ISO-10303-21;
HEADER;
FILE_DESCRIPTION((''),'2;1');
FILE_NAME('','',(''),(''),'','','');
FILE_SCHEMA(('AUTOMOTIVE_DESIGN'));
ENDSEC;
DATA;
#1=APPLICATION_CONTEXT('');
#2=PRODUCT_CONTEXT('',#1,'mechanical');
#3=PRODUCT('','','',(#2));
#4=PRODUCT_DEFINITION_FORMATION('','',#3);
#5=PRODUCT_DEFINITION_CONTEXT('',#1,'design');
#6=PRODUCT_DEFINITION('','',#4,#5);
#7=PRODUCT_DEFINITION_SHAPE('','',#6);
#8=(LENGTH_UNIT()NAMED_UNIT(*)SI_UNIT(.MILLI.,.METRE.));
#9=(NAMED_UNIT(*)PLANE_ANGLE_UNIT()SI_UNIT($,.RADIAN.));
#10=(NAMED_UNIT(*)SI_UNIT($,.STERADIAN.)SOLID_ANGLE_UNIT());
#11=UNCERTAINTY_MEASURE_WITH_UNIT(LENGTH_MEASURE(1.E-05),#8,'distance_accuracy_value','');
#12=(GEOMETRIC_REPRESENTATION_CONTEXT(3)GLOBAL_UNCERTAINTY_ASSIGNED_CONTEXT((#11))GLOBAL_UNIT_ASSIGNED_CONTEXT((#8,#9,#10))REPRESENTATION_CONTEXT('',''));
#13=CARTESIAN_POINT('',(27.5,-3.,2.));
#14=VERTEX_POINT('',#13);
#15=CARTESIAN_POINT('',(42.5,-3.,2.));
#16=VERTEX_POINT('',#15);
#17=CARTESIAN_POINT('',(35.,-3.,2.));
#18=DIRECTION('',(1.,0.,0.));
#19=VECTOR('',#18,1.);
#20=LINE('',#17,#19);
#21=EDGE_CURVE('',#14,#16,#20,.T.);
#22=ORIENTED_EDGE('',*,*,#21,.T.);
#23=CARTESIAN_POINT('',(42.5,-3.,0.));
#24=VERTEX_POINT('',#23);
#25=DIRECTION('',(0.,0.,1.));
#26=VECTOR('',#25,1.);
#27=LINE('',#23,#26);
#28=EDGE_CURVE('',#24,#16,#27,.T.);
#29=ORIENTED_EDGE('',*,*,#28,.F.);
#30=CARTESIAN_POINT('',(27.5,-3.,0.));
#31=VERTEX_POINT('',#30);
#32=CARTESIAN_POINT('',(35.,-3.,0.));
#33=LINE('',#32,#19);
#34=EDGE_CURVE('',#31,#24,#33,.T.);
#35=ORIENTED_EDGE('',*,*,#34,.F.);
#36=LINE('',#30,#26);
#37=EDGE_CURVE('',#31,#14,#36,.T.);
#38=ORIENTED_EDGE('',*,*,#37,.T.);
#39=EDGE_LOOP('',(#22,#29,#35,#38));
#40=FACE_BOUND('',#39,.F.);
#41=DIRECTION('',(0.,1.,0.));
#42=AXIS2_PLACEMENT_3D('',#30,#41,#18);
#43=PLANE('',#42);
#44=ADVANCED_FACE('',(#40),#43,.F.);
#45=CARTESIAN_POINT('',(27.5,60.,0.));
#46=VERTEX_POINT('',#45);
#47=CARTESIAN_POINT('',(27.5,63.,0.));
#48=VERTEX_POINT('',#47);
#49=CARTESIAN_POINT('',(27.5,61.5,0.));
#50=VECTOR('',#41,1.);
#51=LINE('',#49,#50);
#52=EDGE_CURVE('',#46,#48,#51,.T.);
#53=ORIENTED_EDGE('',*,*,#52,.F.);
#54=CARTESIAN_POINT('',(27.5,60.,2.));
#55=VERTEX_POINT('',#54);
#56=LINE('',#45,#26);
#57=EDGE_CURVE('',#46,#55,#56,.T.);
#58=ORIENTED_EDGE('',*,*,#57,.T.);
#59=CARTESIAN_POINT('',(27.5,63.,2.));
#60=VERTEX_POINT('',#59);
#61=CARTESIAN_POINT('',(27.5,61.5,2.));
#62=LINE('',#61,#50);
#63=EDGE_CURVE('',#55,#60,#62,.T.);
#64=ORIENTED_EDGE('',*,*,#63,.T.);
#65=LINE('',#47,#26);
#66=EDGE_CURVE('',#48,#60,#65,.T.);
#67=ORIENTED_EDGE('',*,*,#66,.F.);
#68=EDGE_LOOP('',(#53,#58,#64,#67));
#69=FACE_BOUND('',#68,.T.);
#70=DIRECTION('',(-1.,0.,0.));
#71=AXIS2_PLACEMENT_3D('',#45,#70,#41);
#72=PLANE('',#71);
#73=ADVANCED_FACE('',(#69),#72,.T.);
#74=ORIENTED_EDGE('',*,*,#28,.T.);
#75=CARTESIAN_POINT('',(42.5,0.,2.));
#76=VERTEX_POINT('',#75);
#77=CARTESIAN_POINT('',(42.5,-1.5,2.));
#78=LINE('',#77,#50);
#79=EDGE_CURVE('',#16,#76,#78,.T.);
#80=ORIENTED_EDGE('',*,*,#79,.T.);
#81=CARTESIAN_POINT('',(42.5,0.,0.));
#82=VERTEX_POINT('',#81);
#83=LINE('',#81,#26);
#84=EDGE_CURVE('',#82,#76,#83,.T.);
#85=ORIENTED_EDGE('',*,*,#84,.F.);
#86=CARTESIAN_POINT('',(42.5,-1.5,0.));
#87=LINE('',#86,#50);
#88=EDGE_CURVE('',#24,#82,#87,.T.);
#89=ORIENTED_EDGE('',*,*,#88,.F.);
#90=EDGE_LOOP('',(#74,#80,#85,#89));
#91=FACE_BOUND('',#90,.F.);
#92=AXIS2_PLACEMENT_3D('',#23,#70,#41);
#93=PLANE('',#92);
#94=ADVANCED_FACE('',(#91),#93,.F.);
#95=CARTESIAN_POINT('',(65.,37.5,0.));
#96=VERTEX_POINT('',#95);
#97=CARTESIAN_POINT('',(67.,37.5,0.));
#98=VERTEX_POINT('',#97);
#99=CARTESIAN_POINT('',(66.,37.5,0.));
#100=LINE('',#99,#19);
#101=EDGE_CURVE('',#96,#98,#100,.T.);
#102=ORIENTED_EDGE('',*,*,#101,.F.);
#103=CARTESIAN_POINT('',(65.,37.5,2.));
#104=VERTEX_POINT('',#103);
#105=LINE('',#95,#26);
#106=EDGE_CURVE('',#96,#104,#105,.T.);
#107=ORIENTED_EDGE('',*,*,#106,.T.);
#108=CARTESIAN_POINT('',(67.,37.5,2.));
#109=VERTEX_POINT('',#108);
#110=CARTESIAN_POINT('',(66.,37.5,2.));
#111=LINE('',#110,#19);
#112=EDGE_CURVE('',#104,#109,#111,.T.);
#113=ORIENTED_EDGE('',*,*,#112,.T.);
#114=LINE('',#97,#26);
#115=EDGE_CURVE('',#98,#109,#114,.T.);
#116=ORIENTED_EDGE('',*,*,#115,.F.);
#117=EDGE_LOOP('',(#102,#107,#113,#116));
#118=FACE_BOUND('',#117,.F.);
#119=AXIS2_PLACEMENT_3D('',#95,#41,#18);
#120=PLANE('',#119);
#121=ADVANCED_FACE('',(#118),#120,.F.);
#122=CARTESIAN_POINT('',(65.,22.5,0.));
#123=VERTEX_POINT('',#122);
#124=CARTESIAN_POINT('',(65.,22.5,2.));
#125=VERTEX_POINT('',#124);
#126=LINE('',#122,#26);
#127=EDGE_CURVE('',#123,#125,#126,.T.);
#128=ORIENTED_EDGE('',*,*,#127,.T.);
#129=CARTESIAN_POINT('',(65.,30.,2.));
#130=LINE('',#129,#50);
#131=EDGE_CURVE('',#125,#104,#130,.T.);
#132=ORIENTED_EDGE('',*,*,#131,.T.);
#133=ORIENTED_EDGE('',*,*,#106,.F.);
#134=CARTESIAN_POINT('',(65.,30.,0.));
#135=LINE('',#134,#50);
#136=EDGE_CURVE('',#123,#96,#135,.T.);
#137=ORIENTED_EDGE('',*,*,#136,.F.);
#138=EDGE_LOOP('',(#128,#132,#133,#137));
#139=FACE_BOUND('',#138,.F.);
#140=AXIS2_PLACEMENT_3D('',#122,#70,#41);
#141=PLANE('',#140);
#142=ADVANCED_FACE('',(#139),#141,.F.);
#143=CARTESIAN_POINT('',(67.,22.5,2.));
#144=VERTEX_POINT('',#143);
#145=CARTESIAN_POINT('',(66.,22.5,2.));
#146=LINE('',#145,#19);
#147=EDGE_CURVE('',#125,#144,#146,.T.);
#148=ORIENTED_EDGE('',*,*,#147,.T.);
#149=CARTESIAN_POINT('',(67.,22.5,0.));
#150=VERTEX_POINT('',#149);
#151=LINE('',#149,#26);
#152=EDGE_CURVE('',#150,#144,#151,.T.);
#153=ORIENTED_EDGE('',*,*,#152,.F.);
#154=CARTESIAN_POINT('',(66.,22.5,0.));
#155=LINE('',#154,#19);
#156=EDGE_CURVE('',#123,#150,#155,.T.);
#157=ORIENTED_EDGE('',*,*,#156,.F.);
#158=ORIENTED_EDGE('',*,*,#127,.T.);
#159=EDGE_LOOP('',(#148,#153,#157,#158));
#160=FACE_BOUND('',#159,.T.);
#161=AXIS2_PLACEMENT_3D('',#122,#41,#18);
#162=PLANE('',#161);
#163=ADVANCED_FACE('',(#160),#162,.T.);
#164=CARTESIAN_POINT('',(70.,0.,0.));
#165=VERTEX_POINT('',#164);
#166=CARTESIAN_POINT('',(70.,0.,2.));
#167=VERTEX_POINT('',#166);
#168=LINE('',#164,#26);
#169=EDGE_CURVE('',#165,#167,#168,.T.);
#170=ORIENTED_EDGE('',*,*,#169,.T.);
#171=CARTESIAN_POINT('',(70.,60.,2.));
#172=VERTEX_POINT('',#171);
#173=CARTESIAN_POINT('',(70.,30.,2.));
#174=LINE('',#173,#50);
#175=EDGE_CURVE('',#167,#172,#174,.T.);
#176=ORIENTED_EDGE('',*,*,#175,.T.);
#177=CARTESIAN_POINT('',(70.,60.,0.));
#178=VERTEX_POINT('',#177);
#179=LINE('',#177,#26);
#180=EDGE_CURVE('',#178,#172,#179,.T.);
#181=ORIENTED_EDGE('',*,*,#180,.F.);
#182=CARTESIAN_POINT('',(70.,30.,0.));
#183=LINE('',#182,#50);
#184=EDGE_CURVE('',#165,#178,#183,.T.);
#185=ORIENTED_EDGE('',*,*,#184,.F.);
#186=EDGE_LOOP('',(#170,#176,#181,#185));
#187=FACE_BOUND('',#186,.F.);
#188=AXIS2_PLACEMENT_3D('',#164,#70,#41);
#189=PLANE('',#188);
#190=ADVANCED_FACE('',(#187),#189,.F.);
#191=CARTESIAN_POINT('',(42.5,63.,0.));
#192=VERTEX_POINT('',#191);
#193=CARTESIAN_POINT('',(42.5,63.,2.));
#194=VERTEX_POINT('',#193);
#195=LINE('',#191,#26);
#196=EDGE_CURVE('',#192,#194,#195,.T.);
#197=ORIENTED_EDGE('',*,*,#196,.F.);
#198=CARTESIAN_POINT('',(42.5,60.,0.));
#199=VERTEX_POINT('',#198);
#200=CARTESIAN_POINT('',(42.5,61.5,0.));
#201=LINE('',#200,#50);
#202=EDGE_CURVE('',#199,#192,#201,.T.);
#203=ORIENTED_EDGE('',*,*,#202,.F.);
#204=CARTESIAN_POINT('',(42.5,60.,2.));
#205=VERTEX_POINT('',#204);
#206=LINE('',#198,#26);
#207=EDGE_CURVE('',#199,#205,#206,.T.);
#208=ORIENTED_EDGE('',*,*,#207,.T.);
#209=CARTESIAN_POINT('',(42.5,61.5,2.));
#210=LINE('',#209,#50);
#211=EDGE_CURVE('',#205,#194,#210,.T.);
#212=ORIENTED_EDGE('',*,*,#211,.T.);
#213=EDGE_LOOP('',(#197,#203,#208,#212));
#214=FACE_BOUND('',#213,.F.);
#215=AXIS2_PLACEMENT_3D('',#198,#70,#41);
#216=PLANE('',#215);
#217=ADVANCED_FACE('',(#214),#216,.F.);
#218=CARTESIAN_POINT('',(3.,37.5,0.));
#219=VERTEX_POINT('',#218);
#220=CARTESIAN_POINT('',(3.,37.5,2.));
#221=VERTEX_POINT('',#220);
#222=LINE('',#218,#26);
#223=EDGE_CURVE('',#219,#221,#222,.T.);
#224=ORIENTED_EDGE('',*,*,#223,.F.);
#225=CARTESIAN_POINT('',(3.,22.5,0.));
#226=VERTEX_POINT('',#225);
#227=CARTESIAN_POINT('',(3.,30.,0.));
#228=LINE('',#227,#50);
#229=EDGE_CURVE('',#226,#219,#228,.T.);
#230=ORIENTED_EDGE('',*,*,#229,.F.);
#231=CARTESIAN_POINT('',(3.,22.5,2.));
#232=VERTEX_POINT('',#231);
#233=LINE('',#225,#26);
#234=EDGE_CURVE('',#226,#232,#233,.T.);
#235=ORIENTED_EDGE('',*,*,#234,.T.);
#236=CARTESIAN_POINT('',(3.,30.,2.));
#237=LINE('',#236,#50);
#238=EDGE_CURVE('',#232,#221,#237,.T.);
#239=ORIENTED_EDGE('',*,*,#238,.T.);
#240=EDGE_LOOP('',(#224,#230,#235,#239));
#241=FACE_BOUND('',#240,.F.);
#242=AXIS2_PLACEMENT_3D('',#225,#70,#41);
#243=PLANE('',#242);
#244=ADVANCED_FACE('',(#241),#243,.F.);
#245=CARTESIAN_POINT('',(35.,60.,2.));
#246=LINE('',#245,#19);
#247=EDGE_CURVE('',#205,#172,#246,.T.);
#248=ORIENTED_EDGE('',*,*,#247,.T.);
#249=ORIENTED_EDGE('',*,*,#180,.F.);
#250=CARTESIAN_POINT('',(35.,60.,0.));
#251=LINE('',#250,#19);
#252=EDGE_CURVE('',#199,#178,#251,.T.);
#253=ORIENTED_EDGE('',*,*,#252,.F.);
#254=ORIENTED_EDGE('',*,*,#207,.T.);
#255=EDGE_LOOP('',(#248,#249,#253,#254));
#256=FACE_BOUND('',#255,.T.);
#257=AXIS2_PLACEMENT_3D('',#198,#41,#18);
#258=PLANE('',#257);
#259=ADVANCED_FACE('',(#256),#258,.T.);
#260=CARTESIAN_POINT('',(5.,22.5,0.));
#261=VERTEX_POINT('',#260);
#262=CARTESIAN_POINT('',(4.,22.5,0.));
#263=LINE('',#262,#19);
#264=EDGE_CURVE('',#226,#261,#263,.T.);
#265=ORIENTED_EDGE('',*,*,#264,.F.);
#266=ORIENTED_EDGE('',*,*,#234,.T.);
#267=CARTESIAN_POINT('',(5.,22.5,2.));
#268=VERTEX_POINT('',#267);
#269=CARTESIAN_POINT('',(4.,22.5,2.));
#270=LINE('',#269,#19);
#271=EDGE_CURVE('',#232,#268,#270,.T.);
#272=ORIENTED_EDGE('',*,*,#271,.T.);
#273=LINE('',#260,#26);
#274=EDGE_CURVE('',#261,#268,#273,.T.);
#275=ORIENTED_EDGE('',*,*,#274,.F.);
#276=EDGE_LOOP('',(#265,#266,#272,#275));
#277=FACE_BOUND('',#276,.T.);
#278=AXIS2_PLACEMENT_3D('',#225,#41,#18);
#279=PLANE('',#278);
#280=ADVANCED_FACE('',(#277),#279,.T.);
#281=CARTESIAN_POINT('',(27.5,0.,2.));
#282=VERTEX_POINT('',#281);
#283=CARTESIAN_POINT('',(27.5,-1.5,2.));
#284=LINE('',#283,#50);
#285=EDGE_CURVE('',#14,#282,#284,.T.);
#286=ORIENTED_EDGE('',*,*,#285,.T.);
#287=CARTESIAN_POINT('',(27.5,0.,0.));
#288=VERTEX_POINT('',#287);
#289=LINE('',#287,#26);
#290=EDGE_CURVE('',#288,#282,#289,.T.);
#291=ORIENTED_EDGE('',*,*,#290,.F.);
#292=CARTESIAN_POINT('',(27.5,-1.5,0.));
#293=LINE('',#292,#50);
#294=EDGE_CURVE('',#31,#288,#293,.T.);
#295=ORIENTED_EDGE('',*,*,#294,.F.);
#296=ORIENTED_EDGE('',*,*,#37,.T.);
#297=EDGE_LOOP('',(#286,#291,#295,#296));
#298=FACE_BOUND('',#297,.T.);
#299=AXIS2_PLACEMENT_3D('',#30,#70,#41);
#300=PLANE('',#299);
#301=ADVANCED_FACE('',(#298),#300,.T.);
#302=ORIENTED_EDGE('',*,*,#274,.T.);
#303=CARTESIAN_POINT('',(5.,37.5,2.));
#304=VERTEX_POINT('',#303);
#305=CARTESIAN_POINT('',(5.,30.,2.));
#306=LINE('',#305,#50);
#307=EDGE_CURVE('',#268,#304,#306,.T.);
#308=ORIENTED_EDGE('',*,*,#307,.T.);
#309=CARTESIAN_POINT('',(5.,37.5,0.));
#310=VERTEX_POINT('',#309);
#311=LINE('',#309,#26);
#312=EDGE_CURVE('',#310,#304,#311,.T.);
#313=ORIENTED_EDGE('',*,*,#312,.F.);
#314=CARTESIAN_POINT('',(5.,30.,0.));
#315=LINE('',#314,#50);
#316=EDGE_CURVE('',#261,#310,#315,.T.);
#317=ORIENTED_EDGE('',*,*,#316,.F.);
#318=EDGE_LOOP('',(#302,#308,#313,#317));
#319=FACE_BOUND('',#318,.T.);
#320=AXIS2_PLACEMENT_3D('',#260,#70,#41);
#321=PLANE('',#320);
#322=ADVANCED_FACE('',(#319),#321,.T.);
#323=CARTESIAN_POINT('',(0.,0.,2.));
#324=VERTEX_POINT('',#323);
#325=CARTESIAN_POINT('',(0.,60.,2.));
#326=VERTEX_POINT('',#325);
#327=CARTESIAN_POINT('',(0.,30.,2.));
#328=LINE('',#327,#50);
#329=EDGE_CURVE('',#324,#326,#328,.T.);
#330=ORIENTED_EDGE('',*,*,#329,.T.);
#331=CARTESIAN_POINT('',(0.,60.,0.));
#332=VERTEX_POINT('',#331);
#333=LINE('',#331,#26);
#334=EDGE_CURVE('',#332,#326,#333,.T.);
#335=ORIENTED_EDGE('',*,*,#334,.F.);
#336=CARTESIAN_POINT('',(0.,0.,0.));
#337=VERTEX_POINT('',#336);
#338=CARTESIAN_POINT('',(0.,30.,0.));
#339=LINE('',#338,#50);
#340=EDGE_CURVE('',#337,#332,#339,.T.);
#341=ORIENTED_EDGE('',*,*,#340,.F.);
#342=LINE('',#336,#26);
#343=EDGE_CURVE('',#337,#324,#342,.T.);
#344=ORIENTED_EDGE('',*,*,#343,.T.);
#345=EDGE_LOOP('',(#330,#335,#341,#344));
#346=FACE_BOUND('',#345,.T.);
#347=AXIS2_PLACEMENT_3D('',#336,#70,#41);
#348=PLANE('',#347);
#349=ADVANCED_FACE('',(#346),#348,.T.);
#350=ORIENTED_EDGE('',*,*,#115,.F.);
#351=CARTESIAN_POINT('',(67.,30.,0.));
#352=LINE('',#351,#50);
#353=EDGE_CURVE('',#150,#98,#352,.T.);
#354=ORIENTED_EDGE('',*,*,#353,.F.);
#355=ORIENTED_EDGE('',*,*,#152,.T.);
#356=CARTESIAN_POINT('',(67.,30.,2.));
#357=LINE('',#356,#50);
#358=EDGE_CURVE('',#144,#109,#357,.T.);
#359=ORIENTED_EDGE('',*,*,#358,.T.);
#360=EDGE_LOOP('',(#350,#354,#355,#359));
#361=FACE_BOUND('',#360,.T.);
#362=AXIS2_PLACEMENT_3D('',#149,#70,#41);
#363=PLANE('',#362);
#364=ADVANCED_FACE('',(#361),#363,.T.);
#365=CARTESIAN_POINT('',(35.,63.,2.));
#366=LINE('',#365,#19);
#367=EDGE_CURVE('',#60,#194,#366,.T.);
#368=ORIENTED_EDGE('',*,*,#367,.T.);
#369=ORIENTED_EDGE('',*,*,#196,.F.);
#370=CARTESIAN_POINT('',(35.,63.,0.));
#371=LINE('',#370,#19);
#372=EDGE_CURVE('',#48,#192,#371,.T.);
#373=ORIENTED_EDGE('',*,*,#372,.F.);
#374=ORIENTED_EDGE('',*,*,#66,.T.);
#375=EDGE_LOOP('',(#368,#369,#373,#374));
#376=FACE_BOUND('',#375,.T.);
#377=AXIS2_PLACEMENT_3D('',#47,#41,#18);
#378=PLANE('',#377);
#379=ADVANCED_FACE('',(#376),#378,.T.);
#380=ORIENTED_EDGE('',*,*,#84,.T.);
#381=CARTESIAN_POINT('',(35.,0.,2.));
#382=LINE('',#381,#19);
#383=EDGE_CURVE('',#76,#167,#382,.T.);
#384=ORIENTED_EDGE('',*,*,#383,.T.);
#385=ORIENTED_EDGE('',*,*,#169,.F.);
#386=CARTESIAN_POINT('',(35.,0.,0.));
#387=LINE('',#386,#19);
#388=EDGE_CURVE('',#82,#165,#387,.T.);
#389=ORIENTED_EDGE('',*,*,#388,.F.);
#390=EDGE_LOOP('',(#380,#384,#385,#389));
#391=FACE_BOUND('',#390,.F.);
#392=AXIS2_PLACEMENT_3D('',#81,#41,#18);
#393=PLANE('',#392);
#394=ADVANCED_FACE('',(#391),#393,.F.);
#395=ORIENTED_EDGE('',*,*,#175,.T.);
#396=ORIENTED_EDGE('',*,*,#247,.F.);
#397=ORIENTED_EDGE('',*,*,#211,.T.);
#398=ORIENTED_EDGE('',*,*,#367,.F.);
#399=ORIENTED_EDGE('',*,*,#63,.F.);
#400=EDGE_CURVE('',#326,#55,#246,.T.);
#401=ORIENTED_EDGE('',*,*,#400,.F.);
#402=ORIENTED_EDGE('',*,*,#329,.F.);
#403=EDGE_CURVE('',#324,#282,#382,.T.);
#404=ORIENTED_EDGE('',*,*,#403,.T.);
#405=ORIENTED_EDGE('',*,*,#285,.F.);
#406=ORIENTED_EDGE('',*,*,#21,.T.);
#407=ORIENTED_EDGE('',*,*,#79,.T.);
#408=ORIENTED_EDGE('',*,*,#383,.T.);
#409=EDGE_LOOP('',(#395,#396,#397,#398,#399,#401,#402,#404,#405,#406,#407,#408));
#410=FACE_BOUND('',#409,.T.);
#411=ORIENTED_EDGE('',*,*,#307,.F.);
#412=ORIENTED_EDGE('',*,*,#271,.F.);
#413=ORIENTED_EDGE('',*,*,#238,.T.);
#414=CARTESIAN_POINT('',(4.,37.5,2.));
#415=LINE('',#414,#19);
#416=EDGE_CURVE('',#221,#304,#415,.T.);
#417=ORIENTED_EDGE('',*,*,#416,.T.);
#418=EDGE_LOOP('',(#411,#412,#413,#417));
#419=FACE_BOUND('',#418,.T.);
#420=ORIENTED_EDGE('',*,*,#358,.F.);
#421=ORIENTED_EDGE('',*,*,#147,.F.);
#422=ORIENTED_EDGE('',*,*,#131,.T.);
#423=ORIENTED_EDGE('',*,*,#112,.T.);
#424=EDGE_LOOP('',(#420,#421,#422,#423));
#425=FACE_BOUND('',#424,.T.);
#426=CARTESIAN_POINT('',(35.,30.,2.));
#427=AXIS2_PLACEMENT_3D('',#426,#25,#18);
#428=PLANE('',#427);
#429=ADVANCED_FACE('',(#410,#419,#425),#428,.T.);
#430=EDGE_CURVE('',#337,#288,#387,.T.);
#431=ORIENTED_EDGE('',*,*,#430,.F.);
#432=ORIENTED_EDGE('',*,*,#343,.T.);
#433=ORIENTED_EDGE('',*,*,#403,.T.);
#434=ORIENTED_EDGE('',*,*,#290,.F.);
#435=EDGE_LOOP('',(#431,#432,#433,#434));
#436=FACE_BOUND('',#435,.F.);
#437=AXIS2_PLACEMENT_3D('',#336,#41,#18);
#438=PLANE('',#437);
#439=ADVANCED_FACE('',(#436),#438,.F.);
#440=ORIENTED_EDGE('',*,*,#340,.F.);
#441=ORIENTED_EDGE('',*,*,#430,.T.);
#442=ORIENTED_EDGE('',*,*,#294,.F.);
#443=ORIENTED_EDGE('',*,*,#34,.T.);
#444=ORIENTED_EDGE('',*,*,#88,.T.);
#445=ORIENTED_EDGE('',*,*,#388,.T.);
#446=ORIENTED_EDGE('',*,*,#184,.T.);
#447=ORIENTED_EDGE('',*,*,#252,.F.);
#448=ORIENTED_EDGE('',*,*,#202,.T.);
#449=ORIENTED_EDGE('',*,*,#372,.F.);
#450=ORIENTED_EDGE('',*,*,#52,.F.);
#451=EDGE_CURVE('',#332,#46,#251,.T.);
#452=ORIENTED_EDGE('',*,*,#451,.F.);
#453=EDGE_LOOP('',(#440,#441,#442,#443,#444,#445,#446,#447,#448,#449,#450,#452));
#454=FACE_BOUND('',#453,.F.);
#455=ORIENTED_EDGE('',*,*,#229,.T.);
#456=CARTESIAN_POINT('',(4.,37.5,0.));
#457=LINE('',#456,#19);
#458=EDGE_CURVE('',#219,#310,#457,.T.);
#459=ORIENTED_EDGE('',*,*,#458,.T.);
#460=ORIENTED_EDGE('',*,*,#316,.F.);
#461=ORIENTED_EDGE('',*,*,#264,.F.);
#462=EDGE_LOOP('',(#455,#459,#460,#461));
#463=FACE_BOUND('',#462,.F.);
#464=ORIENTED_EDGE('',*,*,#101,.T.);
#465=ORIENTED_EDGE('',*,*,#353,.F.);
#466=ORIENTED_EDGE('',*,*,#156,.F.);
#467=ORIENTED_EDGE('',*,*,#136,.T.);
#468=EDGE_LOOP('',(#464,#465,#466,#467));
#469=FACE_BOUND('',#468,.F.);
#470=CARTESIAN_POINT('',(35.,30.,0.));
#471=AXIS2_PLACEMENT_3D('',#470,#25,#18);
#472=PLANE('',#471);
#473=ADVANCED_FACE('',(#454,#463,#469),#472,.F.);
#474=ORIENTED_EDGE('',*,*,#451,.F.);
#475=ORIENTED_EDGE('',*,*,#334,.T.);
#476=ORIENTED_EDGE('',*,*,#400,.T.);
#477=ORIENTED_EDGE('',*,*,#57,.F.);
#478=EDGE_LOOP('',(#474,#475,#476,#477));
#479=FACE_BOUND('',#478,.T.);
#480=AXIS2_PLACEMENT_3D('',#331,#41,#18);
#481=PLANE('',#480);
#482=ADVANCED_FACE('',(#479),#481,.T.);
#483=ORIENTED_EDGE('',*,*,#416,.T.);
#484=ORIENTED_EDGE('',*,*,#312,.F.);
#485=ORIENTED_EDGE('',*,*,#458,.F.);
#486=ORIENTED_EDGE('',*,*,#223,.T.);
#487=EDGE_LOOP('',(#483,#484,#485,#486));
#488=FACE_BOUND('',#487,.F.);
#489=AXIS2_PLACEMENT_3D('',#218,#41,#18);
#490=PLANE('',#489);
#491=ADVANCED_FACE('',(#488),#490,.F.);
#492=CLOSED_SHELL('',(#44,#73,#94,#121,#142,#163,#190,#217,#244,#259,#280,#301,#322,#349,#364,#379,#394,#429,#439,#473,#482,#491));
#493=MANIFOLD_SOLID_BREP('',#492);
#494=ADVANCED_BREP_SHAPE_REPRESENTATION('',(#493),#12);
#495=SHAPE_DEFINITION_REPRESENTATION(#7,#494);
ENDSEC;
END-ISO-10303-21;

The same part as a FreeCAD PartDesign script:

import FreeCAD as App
import Part
import Sketcher


def add_polygon(sketch, points):
    """Adds a closed chain of lines whose ends are joined by coincident constraints."""
    first, n = sketch.GeometryCount, len(points)
    for a, b in zip(points, points[1:] + points[:1]):
        sketch.addGeometry(Part.LineSegment(App.Vector(*a, 0), App.Vector(*b, 0)), False)
    for i in range(n):
        sketch.addConstraint(Sketcher.Constraint("Coincident", first + i, 2, first + (i + 1) % n, 1))

doc = App.newDocument("Part")
params = doc.addObject("Spreadsheet::Sheet", "Params")
for row, (alias, value) in enumerate([
    ("sketch1_width", "15 mm"),
    ("sketch1_height", "60 mm"),
    ("sketch1_height2", "3 mm"),
    ("sketch1_width2", "27.5 mm"),
    ("pad1_length", "2 mm"),
    ("sketch2_width", "2 mm"),
    ("sketch2_height", "15 mm"),
    ("pocket1_length", "2 mm"),
], start=1):
    params.set(f"A{row}", alias)
    params.set(f"B{row}", "=" + value)
    params.setAlias(f"B{row}", alias)

body = doc.addObject("PartDesign::Body", "Body")

sketch1 = body.newObject("Sketcher::SketchObject", "Sketch")
sketch1.AttachmentSupport = (doc.getObject("XY_Plane"), [""])
sketch1.MapMode = "FlatFace"
add_polygon(sketch1, [(0, 60), (0, 0), (27.5, 0), (27.5, -3), (42.5, -3), (42.5, 0), (70, 0), (70, 60), (42.5, 60), (42.5, 63), (27.5, 63), (27.5, 60)])
sketch1.addConstraint([
    Sketcher.Constraint("Vertical", 0),
    Sketcher.Constraint("Horizontal", 1),
    Sketcher.Constraint("Vertical", 2),
    Sketcher.Constraint("Horizontal", 3),
    Sketcher.Constraint("Vertical", 4),
    Sketcher.Constraint("Horizontal", 5),
    Sketcher.Constraint("Vertical", 6),
    Sketcher.Constraint("Horizontal", 7),
    Sketcher.Constraint("Vertical", 8),
    Sketcher.Constraint("Horizontal", 9),
    Sketcher.Constraint("Vertical", 10),
    Sketcher.Constraint("Horizontal", 11),
    Sketcher.Constraint("Coincident", 0, 2, -1, 1),
    Sketcher.Constraint("PointOnObject", 4, 2, -1),
    Sketcher.Constraint("Horizontal", 7, 2, 10, 2),
    Sketcher.Constraint("Vertical", 4, 2, 7, 2),
    Sketcher.Constraint("Vertical", 2, 2, 9, 2),
    Sketcher.Constraint("Equal", 1, 5),
    Sketcher.Constraint("Equal", 4, 8),
    Sketcher.Constraint("DistanceX", 3, 1, 3, 2, 15.0),
    Sketcher.Constraint("DistanceY", 0, 2, 0, 1, 60.0),
    Sketcher.Constraint("DistanceY", 2, 2, 2, 1, 3.0),
    Sketcher.Constraint("DistanceX", 1, 1, 1, 2, 27.5),
])
sketch1.setExpression("Constraints[31]", "Params.sketch1_width")
sketch1.setExpression("Constraints[32]", "Params.sketch1_height")
sketch1.setExpression("Constraints[33]", "Params.sketch1_height2")
sketch1.setExpression("Constraints[34]", "Params.sketch1_width2")
pad1 = body.newObject("PartDesign::Pad", "Pad")
pad1.Profile = sketch1
pad1.setExpression("Length", "Params.pad1_length")

sketch2 = body.newObject("Sketcher::SketchObject", "Sketch001")
sketch2.AttachmentSupport = (doc.getObject("XY_Plane"), [""])
sketch2.MapMode = "FlatFace"
add_polygon(sketch2, [(65, 37.5), (65, 22.5), (67, 22.5), (67, 37.5)])
add_polygon(sketch2, [(3, 37.5), (3, 22.5), (5, 22.5), (5, 37.5)])
sketch2.addConstraint([
    Sketcher.Constraint("Vertical", 0),
    Sketcher.Constraint("Horizontal", 1),
    Sketcher.Constraint("Vertical", 2),
    Sketcher.Constraint("Horizontal", 3),
    Sketcher.Constraint("Vertical", 4),
    Sketcher.Constraint("Horizontal", 5),
    Sketcher.Constraint("Vertical", 6),
    Sketcher.Constraint("Horizontal", 7),
    Sketcher.Constraint("Horizontal", 1, 2, 4, 2),
    Sketcher.Constraint("Horizontal", 3, 2, 6, 2),
    Sketcher.Constraint("Equal", 3, 5),
    Sketcher.Constraint("DistanceX", 1, 1, 1, 2, 2.0),
    Sketcher.Constraint("DistanceY", 0, 2, 0, 1, 15.0),
    Sketcher.Constraint("DistanceX", -1, 1, 0, 2, 65.0),
    Sketcher.Constraint("DistanceX", -1, 1, 4, 2, 3.0),
    Sketcher.Constraint("DistanceY", -1, 1, 0, 2, 22.5),
])
sketch2.setExpression("Constraints[19]", "Params.sketch2_width")
sketch2.setExpression("Constraints[20]", "Params.sketch2_height")
pocket1 = body.newObject("PartDesign::Pocket", "Pocket")
pocket1.Profile = sketch2
pocket1.setExpression("Length", "Params.pocket1_length")
pocket1.Reversed = True

doc.recompute()
